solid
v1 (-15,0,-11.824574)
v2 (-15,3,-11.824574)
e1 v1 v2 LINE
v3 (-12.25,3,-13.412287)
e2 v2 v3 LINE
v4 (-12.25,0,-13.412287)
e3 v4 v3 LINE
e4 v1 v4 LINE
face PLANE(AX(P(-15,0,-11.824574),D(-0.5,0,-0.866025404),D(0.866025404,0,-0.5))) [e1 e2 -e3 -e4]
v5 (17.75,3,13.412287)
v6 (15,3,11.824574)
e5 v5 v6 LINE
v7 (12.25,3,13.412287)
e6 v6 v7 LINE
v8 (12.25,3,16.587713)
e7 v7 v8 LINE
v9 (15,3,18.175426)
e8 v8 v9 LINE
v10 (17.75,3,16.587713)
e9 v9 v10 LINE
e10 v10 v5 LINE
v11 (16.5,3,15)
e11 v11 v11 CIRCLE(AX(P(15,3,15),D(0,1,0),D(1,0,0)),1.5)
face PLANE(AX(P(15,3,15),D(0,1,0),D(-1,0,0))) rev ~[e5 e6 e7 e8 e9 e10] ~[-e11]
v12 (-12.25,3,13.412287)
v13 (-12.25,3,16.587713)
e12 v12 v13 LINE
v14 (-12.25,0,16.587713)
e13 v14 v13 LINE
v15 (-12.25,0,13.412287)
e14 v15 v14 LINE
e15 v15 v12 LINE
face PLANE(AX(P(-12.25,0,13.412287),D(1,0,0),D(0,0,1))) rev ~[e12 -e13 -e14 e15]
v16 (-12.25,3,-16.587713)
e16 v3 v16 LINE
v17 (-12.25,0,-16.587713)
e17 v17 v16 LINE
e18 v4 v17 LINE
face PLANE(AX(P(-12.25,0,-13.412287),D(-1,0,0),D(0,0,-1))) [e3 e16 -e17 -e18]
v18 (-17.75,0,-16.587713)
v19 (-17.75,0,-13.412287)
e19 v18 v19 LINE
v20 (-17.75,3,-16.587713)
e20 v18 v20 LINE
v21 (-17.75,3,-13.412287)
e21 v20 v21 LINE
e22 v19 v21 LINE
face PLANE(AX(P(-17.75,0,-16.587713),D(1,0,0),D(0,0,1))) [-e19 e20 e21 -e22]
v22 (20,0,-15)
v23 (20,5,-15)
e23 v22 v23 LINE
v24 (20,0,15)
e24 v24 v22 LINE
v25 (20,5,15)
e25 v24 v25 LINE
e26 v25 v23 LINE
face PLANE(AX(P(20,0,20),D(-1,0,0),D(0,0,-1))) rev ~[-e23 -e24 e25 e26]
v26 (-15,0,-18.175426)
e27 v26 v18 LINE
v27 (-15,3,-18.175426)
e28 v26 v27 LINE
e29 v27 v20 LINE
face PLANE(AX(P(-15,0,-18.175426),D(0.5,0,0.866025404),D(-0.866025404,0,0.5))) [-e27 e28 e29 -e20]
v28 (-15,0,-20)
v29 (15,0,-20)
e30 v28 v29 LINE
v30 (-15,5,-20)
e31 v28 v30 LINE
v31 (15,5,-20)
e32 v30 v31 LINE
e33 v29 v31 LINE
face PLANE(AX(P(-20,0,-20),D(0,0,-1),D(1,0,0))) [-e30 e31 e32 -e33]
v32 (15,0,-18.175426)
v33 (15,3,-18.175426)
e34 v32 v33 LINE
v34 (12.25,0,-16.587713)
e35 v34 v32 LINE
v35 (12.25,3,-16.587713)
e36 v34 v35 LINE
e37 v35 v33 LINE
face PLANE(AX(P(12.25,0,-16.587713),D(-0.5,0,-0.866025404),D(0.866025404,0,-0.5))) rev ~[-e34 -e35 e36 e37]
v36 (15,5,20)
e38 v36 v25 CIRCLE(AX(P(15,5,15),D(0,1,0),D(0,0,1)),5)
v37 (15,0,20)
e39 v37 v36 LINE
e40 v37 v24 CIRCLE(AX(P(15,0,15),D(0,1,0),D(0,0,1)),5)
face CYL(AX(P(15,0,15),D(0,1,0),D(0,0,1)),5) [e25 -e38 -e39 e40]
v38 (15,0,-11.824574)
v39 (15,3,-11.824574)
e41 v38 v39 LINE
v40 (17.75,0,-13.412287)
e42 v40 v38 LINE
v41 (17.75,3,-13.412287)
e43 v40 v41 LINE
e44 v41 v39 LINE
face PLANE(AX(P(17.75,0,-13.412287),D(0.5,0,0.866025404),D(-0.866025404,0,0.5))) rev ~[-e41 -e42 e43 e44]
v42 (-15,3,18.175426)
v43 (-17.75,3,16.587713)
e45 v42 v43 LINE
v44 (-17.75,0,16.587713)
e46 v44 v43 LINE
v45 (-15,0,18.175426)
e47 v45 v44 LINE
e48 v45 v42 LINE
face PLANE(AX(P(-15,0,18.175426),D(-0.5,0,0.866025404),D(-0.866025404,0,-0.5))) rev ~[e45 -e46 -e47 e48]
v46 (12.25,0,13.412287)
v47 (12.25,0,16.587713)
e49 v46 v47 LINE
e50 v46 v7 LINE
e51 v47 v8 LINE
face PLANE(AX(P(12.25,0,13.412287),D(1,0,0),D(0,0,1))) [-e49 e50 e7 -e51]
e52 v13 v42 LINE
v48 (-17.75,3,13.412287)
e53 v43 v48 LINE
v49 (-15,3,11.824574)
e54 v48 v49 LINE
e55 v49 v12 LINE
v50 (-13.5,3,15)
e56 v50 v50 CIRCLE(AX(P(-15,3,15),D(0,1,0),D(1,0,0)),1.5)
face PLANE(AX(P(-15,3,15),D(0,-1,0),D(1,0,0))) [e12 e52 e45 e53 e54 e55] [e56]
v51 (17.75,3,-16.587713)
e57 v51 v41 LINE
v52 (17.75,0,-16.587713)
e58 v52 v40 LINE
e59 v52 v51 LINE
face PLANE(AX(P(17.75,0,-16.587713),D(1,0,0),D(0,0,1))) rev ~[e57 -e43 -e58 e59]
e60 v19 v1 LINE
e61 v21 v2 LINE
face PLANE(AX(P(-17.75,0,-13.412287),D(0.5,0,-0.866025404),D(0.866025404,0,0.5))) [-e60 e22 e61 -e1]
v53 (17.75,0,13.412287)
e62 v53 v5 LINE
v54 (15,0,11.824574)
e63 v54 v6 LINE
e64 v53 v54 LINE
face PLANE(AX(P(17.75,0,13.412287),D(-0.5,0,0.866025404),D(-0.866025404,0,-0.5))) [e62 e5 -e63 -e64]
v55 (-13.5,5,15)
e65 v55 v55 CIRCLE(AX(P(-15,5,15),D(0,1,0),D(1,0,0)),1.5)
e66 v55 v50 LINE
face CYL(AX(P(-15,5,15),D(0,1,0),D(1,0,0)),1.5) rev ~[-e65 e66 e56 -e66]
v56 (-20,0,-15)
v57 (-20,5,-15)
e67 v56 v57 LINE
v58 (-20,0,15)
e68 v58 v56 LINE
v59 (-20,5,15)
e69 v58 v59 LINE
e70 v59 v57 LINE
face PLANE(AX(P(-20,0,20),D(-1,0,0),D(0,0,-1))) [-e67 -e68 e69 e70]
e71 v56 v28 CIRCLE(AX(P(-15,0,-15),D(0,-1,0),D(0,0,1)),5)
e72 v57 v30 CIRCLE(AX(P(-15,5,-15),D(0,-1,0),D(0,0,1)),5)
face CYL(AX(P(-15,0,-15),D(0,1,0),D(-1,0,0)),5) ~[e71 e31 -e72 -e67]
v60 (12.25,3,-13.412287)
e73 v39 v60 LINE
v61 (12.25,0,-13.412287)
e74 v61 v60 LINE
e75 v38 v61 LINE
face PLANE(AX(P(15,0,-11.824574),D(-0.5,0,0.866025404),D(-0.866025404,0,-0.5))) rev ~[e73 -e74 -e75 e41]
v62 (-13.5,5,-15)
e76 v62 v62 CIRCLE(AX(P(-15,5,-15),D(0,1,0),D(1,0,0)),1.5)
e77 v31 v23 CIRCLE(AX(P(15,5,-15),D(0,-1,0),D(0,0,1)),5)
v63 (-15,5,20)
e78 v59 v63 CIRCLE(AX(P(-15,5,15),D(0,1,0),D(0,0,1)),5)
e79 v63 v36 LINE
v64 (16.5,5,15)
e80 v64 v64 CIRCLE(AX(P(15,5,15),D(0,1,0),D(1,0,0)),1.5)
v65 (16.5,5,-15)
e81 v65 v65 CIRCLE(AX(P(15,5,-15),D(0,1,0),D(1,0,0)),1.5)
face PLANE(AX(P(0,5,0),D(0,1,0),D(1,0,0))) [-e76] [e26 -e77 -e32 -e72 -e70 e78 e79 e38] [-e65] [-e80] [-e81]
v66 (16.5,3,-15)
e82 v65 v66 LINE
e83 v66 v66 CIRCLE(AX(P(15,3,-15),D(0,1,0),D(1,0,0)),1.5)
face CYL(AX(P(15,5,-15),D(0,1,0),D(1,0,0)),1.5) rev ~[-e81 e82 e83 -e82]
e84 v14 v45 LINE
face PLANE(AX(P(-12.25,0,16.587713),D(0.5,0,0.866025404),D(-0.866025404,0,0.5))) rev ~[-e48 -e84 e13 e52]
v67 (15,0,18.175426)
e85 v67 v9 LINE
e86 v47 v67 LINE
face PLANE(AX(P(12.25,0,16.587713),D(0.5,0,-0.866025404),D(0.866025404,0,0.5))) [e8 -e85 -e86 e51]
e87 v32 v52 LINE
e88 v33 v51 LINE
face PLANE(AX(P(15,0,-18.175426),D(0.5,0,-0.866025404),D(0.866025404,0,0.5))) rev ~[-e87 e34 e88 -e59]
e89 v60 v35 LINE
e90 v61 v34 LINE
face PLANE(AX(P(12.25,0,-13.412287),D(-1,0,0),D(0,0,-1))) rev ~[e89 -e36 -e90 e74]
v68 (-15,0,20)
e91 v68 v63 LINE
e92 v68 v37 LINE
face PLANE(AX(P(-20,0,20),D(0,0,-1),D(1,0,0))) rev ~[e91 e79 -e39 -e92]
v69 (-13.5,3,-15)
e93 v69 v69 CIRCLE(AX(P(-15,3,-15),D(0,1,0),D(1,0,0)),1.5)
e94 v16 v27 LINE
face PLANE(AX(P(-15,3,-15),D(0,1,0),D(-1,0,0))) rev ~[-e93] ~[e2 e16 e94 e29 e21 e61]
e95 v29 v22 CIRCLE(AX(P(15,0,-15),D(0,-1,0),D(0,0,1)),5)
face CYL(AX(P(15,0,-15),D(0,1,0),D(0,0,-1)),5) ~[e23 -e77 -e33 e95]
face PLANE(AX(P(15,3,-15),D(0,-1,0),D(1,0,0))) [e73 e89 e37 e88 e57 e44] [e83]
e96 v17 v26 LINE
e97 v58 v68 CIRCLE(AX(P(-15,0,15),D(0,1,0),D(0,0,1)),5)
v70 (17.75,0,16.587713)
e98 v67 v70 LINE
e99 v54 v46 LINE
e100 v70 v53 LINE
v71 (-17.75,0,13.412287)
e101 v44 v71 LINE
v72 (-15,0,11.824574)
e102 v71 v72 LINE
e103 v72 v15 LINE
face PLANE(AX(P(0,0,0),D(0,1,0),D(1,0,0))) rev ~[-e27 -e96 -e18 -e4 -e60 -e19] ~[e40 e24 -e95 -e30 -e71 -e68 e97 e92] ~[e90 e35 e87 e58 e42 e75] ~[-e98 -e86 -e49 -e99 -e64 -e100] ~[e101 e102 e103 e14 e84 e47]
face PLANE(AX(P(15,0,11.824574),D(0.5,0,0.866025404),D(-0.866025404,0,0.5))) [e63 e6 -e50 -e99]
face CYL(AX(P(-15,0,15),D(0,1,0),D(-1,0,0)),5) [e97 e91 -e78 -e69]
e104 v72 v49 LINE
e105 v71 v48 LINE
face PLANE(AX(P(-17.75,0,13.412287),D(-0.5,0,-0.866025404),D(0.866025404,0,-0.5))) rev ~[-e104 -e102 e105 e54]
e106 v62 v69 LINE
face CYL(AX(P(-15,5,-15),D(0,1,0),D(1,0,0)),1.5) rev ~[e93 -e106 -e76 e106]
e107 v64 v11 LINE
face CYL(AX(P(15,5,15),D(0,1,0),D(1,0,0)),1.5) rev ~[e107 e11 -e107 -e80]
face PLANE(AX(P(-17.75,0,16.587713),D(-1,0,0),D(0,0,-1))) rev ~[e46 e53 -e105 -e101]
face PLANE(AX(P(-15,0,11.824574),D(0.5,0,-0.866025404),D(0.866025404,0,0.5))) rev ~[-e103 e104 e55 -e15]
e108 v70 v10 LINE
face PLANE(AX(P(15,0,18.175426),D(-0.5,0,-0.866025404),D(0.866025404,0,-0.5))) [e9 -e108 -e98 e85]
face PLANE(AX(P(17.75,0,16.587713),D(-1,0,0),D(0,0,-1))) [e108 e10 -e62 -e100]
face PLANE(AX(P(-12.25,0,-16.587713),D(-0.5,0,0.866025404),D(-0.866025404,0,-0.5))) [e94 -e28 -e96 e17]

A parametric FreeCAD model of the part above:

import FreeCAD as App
import Part
import Sketcher
from FreeCAD import Vector
Q = App.Units.Quantity


def edges_at(feature, points):
    """Names of the edges that pass closest to the given points."""
    edges = feature.Shape.Edges
    near = lambda p: min(range(len(edges)), key=lambda i: edges[i].distToShape(Part.Vertex(*p))[0])
    return sorted({f"Edge{near(p) + 1}" for p in points})


def add_polygon(sketch, points):
    """Adds a closed chain of lines whose ends are joined by coincident constraints."""
    first, n = sketch.GeometryCount, len(points)
    for a, b in zip(points, points[1:] + points[:1]):
        sketch.addGeometry(Part.LineSegment(App.Vector(*a, 0), App.Vector(*b, 0)), False)
    for i in range(n):
        sketch.addConstraint(Sketcher.Constraint("Coincident", first + i, 2, first + (i + 1) % n, 1))

doc = App.newDocument("Part")
body = doc.addObject("PartDesign::Body", "Body")

sketch1 = body.newObject("Sketcher::SketchObject", "Sketch")
sketch1.AttachmentSupport = (doc.getObject("XZ_Plane"), [""])
sketch1.MapMode = "FlatFace"
add_polygon(sketch1, [(-20, -20), (-20, 20), (20, 20), (20, -20)])
sketch1.addConstraint(Sketcher.Constraint("Vertical", 0))
sketch1.addConstraint(Sketcher.Constraint("Horizontal", 1))
sketch1.addConstraint(Sketcher.Constraint("Vertical", 2))
sketch1.addConstraint(Sketcher.Constraint("Horizontal", 3))
sketch1.addConstraint(Sketcher.Constraint("Symmetric", 0, 2, 2, 2, -1, 1))
sketch1.addConstraint(Sketcher.Constraint("Equal", 3, 0))
sketch1.addConstraint(Sketcher.Constraint("DistanceX", 1, 1, 1, 2, 40.0))
pad1 = body.newObject("PartDesign::Pad", "Pad")
pad1.Profile = sketch1
pad1.Length = 5
pad1.Reversed = True

sketch2 = body.newObject("Sketcher::SketchObject", "Sketch001")
sketch2.AttachmentSupport = (doc.getObject("XZ_Plane"), [""])
sketch2.MapMode = "FlatFace"
sketch2.AttachmentOffset = App.Placement(Vector(0, 0, -5), App.Rotation())
sketch2.addGeometry(Part.Circle(Vector(-15, -15, 0), Vector(0, 0, 1), 1.5), False)
sketch2.addGeometry(Part.Circle(Vector(15, -15, 0), Vector(0, 0, 1), 1.5), False)
sketch2.addGeometry(Part.Circle(Vector(15, 15, 0), Vector(0, 0, 1), 1.5), False)
sketch2.addGeometry(Part.Circle(Vector(-15, 15, 0), Vector(0, 0, 1), 1.5), False)
sketch2.addConstraint(Sketcher.Constraint("Equal", 0, 1))
sketch2.addConstraint(Sketcher.Constraint("Equal", 1, 2))
sketch2.addConstraint(Sketcher.Constraint("Equal", 2, 3))
sketch2.addConstraint(Sketcher.Constraint("Symmetric", 0, 3, 2, 3, -1, 1))
sketch2.addConstraint(Sketcher.Constraint("Symmetric", 1, 3, 3, 3, -1, 1))
sketch2.addConstraint(Sketcher.Constraint("Symmetric", 0, 3, 1, 3, -2))
sketch2.addConstraint(Sketcher.Constraint("Diameter", 0, 3.0))
sketch2.addConstraint(Sketcher.Constraint("DistanceX", 0, 3, -1, 1, 15.0))
sketch2.addConstraint(Sketcher.Constraint("DistanceY", 0, 3, -1, 1, 15.0))
pocket1 = body.newObject("PartDesign::Pocket", "Pocket")
pocket1.Profile = sketch2
pocket1.Length = 10
pocket1.Reversed = True
doc.recompute()

fillet = body.newObject("PartDesign::Fillet", "Fillet")
fillet.Base = (pocket1, edges_at(pocket1, [
    (20, 2.5, 20),
    (-20, 2.5, 20),
    (-20, 2.5, -20),
    (20, 2.5, -20),
]))
fillet.Radius = 5

sketch3 = body.newObject("Sketcher::SketchObject", "Sketch002")
sketch3.AttachmentSupport = (doc.getObject("XZ_Plane"), [""])
sketch3.MapMode = "FlatFace"
add_polygon(sketch3, [(15, 18.2), (12.2, 16.6), (12.2, 13.4), (15, 11.8), (17.8, 13.4), (17.8, 16.6)])
add_polygon(sketch3, [(-15, 18.2), (-17.8, 16.6), (-17.8, 13.4), (-15, 11.8), (-12.2, 13.4), (-12.2, 16.6)])
add_polygon(sketch3, [(12.2, -13.4), (12.2, -16.6), (15, -18.2), (17.8, -16.6), (17.8, -13.4), (15, -11.8)])
add_polygon(sketch3, [(-15, -18.2), (-12.2, -16.6), (-12.2, -13.4), (-15, -11.8), (-17.8, -13.4), (-17.8, -16.6)])
sketch3.addConstraint(Sketcher.Constraint("Vertical", 1))
sketch3.addConstraint(Sketcher.Constraint("Vertical", 4))
sketch3.addConstraint(Sketcher.Constraint("Vertical", 7))
sketch3.addConstraint(Sketcher.Constraint("Vertical", 10))
sketch3.addConstraint(Sketcher.Constraint("Vertical", 12))
sketch3.addConstraint(Sketcher.Constraint("Vertical", 15))
sketch3.addConstraint(Sketcher.Constraint("Vertical", 19))
sketch3.addConstraint(Sketcher.Constraint("Vertical", 22))
sketch3.addConstraint(Sketcher.Constraint("Symmetric", 10, 2, 12, 2, -1, 1))
sketch3.addConstraint(Sketcher.Constraint("Symmetric", 11, 2, 13, 2, -1, 1))
sketch3.addConstraint(Sketcher.Constraint("Symmetric", 6, 2, 14, 2, -1, 1))
sketch3.addConstraint(Sketcher.Constraint("Symmetric", 8, 2, 16, 2, -1, 1))
sketch3.addConstraint(Sketcher.Constraint("Symmetric", 0, 2, 18, 2, -1, 1))
sketch3.addConstraint(Sketcher.Constraint("Symmetric", 2, 2, 20, 2, -1, 1))
sketch3.addConstraint(Sketcher.Constraint("Symmetric", 3, 2, 21, 2, -1, 1))
sketch3.addConstraint(Sketcher.Constraint("Symmetric", 5, 2, 23, 2, -1, 1))
sketch3.addConstraint(Sketcher.Constraint("Symmetric", 4, 2, 6, 2, -2))
sketch3.addConstraint(Sketcher.Constraint("Symmetric", 2, 2, 8, 2, -2))
sketch3.addConstraint(Sketcher.Constraint("Symmetric", 1, 2, 9, 2, -2))
sketch3.addConstraint(Sketcher.Constraint("Symmetric", 5, 2, 11, 2, -2))
sketch3.addConstraint(Sketcher.Constraint("Parallel", 0, 3))
sketch3.addConstraint(Sketcher.Constraint("Parallel", 2, 5))
sketch3.addConstraint(Sketcher.Constraint("Parallel", 3, 6))
sketch3.addConstraint(Sketcher.Constraint("Parallel", 5, 8))
sketch3.addConstraint(Sketcher.Constraint("Parallel", 8, 11))
sketch3.addConstraint(Sketcher.Constraint("Parallel", 13, 16))
sketch3.addConstraint(Sketcher.Constraint("Parallel", 14, 17))
sketch3.addConstraint(Sketcher.Constraint("Parallel", 16, 20))
sketch3.addConstraint(Sketcher.Constraint("Parallel", 20, 23))
sketch3.addConstraint(Sketcher.Constraint("Horizontal", 1, 2, 3, 2))
sketch3.addConstraint(Sketcher.Constraint("Horizontal", 0, 2, 4, 2))
sketch3.addConstraint(Sketcher.Constraint("Angle", 0, Q("-150 deg")))
sketch3.addConstraint(Sketcher.Constraint("DistanceX", -1, 1, 2, 2, 15.0))
sketch3.addConstraint(Sketcher.Constraint("DistanceY", 12, 2, 1, 2, 30.0))
sketch3.addConstraint(Sketcher.Constraint("DistanceX", 1, 2, 3, 2, 5.5))
sketch3.addConstraint(Sketcher.Constraint("DistanceY", 1, 2, 1, 1, 3.175426))
pocket2 = body.newObject("PartDesign::Pocket", "Pocket001")
pocket2.Profile = sketch3
pocket2.Length = 3

doc.recompute()
